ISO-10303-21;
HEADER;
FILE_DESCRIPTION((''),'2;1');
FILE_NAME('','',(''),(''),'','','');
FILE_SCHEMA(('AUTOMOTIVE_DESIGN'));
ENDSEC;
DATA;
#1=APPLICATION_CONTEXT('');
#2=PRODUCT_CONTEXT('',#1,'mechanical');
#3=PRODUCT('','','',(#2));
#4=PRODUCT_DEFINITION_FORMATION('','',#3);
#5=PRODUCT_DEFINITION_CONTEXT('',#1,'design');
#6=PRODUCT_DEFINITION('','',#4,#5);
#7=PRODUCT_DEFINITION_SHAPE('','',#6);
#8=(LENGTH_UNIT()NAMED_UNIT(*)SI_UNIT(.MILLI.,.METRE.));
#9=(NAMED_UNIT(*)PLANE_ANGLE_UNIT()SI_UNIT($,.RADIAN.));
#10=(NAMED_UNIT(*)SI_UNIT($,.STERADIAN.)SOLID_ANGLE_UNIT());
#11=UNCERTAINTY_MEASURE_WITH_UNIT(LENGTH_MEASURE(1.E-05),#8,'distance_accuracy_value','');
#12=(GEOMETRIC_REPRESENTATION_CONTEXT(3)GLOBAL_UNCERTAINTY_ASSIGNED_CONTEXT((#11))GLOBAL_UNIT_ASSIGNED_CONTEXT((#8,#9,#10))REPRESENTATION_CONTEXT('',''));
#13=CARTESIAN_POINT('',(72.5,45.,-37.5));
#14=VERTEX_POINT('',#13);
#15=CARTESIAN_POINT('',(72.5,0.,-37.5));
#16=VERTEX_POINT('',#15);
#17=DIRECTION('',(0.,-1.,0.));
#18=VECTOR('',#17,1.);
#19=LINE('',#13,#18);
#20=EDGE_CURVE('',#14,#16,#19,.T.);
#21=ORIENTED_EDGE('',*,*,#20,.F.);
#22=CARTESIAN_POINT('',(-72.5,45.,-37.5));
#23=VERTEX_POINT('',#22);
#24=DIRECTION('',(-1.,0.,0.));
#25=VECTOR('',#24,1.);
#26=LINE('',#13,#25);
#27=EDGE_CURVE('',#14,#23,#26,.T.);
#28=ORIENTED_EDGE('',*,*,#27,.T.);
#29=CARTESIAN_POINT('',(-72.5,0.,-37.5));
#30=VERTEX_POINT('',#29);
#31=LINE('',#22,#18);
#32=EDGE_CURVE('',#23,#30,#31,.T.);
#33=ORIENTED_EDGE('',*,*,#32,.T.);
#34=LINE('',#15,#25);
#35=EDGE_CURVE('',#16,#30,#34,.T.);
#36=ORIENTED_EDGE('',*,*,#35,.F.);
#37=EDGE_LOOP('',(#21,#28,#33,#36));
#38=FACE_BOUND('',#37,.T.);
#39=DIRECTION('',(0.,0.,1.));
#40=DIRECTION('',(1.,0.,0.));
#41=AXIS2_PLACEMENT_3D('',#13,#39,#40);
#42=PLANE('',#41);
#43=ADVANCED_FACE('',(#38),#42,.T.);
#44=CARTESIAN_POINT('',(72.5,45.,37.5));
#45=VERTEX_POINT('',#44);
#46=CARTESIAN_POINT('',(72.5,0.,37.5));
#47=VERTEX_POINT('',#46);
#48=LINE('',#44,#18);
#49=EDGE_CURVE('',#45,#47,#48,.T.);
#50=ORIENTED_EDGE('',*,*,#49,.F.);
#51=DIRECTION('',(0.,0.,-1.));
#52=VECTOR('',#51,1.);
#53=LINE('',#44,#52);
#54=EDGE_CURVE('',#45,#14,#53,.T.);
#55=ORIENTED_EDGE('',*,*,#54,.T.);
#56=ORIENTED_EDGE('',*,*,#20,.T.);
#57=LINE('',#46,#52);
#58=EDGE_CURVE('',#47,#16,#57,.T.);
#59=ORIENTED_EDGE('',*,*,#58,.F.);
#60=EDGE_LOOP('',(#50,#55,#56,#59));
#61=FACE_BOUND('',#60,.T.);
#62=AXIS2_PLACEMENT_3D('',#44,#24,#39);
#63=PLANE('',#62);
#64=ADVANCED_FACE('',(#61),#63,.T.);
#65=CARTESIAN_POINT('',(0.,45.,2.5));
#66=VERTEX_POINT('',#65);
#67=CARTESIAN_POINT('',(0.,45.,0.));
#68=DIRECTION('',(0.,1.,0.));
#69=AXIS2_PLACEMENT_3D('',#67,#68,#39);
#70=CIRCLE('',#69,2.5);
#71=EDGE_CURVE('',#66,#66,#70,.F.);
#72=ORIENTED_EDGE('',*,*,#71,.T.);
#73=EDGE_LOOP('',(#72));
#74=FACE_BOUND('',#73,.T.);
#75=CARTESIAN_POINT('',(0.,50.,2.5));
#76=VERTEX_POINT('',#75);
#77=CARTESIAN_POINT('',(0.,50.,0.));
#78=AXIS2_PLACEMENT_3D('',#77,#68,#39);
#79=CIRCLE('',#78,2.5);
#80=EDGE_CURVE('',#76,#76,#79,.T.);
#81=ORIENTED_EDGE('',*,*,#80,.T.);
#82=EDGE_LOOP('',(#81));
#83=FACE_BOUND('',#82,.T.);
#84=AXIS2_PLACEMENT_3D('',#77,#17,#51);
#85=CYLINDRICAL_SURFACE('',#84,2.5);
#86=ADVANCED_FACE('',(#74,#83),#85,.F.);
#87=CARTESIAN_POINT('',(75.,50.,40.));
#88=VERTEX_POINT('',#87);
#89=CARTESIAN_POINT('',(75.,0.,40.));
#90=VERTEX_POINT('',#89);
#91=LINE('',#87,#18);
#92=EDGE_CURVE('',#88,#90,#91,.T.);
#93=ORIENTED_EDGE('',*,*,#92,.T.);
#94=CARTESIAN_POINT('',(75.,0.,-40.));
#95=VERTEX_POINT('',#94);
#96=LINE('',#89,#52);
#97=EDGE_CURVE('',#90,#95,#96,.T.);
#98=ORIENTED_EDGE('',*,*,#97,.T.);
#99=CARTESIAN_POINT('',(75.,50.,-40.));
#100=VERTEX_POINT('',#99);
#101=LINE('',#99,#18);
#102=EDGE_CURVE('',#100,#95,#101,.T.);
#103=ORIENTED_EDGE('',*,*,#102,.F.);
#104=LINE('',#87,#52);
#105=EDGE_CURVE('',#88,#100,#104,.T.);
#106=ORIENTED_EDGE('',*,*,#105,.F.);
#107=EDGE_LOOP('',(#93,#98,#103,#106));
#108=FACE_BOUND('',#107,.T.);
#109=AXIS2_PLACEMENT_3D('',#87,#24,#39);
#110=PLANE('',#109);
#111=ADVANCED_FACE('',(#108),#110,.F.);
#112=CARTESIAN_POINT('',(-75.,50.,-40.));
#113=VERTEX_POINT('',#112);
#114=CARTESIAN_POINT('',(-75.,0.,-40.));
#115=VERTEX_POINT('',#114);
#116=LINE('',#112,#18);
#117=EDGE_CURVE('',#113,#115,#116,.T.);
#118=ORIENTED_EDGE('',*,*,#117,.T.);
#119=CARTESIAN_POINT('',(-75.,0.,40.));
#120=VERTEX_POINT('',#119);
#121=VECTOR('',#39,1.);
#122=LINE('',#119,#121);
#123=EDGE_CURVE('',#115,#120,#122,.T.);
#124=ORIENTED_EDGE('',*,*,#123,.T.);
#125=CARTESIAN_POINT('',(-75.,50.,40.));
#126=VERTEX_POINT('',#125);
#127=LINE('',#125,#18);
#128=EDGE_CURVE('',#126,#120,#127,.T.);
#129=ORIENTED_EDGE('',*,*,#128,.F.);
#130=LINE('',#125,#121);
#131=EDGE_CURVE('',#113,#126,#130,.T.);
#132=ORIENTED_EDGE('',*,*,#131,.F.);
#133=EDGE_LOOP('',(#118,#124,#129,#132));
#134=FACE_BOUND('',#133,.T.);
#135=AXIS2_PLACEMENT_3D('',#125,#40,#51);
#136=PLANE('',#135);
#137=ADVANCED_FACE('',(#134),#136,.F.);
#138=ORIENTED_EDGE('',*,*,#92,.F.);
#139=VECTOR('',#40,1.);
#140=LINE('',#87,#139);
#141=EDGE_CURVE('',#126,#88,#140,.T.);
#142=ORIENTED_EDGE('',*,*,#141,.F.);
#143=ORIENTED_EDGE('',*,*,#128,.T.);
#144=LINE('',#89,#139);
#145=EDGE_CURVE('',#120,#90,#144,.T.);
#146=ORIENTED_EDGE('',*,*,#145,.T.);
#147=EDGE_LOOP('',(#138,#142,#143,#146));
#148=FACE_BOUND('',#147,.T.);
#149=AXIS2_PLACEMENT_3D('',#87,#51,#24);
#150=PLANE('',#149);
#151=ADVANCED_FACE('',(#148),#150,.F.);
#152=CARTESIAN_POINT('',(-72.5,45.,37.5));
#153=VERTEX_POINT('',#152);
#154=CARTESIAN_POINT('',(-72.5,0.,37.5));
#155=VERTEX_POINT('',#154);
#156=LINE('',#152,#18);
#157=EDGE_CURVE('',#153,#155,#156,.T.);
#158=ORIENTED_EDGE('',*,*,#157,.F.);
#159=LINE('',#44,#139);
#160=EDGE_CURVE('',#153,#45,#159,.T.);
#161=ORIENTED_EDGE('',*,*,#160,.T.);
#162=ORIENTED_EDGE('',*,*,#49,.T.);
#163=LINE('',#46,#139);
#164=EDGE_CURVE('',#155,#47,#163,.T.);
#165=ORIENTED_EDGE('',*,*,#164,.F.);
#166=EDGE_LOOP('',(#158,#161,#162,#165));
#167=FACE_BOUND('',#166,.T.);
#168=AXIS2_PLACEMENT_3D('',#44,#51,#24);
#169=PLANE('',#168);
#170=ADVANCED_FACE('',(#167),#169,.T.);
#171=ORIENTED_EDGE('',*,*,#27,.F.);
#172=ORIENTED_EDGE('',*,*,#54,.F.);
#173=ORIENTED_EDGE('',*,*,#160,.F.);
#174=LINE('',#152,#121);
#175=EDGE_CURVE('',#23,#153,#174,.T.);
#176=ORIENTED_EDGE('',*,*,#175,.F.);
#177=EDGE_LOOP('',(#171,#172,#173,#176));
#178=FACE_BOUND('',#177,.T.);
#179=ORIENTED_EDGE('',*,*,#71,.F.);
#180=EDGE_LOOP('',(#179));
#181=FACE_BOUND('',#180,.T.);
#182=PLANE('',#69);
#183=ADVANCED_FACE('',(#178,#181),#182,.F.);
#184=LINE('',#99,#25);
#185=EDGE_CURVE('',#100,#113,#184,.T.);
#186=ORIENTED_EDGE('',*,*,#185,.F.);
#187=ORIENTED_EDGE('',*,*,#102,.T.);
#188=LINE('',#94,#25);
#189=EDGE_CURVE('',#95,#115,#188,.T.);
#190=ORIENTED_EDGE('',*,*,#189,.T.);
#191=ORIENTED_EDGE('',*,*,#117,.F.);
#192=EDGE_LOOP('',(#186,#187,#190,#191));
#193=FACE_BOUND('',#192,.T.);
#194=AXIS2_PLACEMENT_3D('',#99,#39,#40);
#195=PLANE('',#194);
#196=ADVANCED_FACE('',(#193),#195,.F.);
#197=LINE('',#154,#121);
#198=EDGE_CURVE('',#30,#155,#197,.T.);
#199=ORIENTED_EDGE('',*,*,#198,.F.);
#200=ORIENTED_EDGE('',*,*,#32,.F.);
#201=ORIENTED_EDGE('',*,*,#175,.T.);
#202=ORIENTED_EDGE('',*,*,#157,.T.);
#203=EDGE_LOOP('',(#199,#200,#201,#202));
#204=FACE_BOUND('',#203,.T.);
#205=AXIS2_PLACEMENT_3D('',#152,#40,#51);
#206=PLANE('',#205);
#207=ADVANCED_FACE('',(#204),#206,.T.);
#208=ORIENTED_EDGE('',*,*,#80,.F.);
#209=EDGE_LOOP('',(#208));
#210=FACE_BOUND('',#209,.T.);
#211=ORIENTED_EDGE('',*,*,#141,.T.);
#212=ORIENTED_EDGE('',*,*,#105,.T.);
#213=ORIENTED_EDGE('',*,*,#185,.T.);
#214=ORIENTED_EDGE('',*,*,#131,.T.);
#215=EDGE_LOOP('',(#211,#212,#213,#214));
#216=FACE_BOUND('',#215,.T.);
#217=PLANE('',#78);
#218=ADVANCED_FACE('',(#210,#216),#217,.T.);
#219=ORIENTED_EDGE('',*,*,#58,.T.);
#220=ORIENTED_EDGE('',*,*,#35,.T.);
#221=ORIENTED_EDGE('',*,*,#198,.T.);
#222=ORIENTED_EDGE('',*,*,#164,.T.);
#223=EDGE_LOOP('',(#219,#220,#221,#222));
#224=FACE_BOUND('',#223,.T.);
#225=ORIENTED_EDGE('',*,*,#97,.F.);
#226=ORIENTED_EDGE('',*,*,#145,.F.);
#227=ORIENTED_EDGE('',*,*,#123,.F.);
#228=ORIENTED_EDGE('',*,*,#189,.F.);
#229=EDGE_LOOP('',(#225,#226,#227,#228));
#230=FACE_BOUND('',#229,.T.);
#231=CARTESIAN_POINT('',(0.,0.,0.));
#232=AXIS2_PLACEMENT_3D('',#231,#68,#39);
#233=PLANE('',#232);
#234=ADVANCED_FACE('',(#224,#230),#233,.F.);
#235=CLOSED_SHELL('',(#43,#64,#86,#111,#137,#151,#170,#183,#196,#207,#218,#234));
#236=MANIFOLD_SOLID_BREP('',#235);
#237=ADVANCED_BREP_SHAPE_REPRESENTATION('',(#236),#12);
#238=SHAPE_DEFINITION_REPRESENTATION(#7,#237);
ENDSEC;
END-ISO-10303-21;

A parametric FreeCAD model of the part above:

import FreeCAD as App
import Part
import Sketcher
from FreeCAD import Vector
Q = App.Units.Quantity


def add_polygon(sketch, points):
    """Adds a closed chain of lines whose ends are joined by coincident constraints."""
    first, n = sketch.GeometryCount, len(points)
    for a, b in zip(points, points[1:] + points[:1]):
        sketch.addGeometry(Part.LineSegment(App.Vector(*a, 0), App.Vector(*b, 0)), False)
    for i in range(n):
        sketch.addConstraint(Sketcher.Constraint("Coincident", first + i, 2, first + (i + 1) % n, 1))

doc = App.newDocument("Part")
params = doc.addObject("Spreadsheet::Sheet", "Params")
for row, (alias, value) in enumerate([
    ("sketch1_width", "150 mm"),
    ("sketch1_height", "80 mm"),
    ("pad1_length", "50 mm"),
    ("sketch2_width", "145 mm"),
    ("sketch2_height", "75 mm"),
    ("pocket1_length", "45 mm"),
    ("sketch3_diameter", "5 mm"),
], start=1):
    params.set(f"A{row}", alias)
    params.set(f"B{row}", "=" + value)
    params.setAlias(f"B{row}", alias)

body = doc.addObject("PartDesign::Body", "Body")

sketch1 = body.newObject("Sketcher::SketchObject", "Sketch")
sketch1.AttachmentSupport = (doc.getObject("XZ_Plane"), [""])
sketch1.MapMode = "FlatFace"
add_polygon(sketch1, [(-75, -40), (-75, 40), (75, 40), (75, -40)])
sketch1.addConstraint([
    Sketcher.Constraint("Vertical", 0),
    Sketcher.Constraint("Horizontal", 1),
    Sketcher.Constraint("Vertical", 2),
    Sketcher.Constraint("Horizontal", 3),
    Sketcher.Constraint("Symmetric", 0, 2, 2, 2, -1, 1),
    Sketcher.Constraint("DistanceX", 1, 1, 1, 2, Q("150 mm")),
    Sketcher.Constraint("DistanceY", 0, 1, 0, 2, Q("80 mm")),
])
sketch1.setExpression("Constraints[9]", "Params.sketch1_width")
sketch1.setExpression("Constraints[10]", "Params.sketch1_height")
pad1 = body.newObject("PartDesign::Pad", "Pad")
pad1.Profile = sketch1
pad1.setExpression("Length", "Params.pad1_length")
pad1.Reversed = True

sketch2 = body.newObject("Sketcher::SketchObject", "Sketch001")
sketch2.AttachmentSupport = (doc.getObject("XZ_Plane"), [""])
sketch2.MapMode = "FlatFace"
add_polygon(sketch2, [(-72, -38), (-72, 38), (72, 38), (72, -38)])
sketch2.addConstraint([
    Sketcher.Constraint("Vertical", 0),
    Sketcher.Constraint("Horizontal", 1),
    Sketcher.Constraint("Vertical", 2),
    Sketcher.Constraint("Horizontal", 3),
    Sketcher.Constraint("Symmetric", 0, 2, 2, 2, -1, 1),
    Sketcher.Constraint("DistanceX", 1, 1, 1, 2, Q("145 mm")),
    Sketcher.Constraint("DistanceY", 0, 1, 0, 2, Q("75 mm")),
])
sketch2.setExpression("Constraints[9]", "Params.sketch2_width")
sketch2.setExpression("Constraints[10]", "Params.sketch2_height")
pocket1 = body.newObject("PartDesign::Pocket", "Pocket")
pocket1.Profile = sketch2
pocket1.setExpression("Length", "Params.pocket1_length")

sketch3 = body.newObject("Sketcher::SketchObject", "Sketch002")
sketch3.AttachmentSupport = (doc.getObject("XZ_Plane"), [""])
sketch3.MapMode = "FlatFace"
sketch3.addGeometry(Part.Circle(Vector(0, 0, 0), Vector(0, 0, 1), 2.5), False)
sketch3.addConstraint([
    Sketcher.Constraint("Coincident", 0, 3, -1, 1),
    Sketcher.Constraint("Diameter", 0, Q("5 mm")),
])
sketch3.setExpression("Constraints[1]", "Params.sketch3_diameter")
pocket2 = body.newObject("PartDesign::Pocket", "Pocket001")
pocket2.Profile = sketch3
pocket2.Type = "ThroughAll"

doc.recompute()
